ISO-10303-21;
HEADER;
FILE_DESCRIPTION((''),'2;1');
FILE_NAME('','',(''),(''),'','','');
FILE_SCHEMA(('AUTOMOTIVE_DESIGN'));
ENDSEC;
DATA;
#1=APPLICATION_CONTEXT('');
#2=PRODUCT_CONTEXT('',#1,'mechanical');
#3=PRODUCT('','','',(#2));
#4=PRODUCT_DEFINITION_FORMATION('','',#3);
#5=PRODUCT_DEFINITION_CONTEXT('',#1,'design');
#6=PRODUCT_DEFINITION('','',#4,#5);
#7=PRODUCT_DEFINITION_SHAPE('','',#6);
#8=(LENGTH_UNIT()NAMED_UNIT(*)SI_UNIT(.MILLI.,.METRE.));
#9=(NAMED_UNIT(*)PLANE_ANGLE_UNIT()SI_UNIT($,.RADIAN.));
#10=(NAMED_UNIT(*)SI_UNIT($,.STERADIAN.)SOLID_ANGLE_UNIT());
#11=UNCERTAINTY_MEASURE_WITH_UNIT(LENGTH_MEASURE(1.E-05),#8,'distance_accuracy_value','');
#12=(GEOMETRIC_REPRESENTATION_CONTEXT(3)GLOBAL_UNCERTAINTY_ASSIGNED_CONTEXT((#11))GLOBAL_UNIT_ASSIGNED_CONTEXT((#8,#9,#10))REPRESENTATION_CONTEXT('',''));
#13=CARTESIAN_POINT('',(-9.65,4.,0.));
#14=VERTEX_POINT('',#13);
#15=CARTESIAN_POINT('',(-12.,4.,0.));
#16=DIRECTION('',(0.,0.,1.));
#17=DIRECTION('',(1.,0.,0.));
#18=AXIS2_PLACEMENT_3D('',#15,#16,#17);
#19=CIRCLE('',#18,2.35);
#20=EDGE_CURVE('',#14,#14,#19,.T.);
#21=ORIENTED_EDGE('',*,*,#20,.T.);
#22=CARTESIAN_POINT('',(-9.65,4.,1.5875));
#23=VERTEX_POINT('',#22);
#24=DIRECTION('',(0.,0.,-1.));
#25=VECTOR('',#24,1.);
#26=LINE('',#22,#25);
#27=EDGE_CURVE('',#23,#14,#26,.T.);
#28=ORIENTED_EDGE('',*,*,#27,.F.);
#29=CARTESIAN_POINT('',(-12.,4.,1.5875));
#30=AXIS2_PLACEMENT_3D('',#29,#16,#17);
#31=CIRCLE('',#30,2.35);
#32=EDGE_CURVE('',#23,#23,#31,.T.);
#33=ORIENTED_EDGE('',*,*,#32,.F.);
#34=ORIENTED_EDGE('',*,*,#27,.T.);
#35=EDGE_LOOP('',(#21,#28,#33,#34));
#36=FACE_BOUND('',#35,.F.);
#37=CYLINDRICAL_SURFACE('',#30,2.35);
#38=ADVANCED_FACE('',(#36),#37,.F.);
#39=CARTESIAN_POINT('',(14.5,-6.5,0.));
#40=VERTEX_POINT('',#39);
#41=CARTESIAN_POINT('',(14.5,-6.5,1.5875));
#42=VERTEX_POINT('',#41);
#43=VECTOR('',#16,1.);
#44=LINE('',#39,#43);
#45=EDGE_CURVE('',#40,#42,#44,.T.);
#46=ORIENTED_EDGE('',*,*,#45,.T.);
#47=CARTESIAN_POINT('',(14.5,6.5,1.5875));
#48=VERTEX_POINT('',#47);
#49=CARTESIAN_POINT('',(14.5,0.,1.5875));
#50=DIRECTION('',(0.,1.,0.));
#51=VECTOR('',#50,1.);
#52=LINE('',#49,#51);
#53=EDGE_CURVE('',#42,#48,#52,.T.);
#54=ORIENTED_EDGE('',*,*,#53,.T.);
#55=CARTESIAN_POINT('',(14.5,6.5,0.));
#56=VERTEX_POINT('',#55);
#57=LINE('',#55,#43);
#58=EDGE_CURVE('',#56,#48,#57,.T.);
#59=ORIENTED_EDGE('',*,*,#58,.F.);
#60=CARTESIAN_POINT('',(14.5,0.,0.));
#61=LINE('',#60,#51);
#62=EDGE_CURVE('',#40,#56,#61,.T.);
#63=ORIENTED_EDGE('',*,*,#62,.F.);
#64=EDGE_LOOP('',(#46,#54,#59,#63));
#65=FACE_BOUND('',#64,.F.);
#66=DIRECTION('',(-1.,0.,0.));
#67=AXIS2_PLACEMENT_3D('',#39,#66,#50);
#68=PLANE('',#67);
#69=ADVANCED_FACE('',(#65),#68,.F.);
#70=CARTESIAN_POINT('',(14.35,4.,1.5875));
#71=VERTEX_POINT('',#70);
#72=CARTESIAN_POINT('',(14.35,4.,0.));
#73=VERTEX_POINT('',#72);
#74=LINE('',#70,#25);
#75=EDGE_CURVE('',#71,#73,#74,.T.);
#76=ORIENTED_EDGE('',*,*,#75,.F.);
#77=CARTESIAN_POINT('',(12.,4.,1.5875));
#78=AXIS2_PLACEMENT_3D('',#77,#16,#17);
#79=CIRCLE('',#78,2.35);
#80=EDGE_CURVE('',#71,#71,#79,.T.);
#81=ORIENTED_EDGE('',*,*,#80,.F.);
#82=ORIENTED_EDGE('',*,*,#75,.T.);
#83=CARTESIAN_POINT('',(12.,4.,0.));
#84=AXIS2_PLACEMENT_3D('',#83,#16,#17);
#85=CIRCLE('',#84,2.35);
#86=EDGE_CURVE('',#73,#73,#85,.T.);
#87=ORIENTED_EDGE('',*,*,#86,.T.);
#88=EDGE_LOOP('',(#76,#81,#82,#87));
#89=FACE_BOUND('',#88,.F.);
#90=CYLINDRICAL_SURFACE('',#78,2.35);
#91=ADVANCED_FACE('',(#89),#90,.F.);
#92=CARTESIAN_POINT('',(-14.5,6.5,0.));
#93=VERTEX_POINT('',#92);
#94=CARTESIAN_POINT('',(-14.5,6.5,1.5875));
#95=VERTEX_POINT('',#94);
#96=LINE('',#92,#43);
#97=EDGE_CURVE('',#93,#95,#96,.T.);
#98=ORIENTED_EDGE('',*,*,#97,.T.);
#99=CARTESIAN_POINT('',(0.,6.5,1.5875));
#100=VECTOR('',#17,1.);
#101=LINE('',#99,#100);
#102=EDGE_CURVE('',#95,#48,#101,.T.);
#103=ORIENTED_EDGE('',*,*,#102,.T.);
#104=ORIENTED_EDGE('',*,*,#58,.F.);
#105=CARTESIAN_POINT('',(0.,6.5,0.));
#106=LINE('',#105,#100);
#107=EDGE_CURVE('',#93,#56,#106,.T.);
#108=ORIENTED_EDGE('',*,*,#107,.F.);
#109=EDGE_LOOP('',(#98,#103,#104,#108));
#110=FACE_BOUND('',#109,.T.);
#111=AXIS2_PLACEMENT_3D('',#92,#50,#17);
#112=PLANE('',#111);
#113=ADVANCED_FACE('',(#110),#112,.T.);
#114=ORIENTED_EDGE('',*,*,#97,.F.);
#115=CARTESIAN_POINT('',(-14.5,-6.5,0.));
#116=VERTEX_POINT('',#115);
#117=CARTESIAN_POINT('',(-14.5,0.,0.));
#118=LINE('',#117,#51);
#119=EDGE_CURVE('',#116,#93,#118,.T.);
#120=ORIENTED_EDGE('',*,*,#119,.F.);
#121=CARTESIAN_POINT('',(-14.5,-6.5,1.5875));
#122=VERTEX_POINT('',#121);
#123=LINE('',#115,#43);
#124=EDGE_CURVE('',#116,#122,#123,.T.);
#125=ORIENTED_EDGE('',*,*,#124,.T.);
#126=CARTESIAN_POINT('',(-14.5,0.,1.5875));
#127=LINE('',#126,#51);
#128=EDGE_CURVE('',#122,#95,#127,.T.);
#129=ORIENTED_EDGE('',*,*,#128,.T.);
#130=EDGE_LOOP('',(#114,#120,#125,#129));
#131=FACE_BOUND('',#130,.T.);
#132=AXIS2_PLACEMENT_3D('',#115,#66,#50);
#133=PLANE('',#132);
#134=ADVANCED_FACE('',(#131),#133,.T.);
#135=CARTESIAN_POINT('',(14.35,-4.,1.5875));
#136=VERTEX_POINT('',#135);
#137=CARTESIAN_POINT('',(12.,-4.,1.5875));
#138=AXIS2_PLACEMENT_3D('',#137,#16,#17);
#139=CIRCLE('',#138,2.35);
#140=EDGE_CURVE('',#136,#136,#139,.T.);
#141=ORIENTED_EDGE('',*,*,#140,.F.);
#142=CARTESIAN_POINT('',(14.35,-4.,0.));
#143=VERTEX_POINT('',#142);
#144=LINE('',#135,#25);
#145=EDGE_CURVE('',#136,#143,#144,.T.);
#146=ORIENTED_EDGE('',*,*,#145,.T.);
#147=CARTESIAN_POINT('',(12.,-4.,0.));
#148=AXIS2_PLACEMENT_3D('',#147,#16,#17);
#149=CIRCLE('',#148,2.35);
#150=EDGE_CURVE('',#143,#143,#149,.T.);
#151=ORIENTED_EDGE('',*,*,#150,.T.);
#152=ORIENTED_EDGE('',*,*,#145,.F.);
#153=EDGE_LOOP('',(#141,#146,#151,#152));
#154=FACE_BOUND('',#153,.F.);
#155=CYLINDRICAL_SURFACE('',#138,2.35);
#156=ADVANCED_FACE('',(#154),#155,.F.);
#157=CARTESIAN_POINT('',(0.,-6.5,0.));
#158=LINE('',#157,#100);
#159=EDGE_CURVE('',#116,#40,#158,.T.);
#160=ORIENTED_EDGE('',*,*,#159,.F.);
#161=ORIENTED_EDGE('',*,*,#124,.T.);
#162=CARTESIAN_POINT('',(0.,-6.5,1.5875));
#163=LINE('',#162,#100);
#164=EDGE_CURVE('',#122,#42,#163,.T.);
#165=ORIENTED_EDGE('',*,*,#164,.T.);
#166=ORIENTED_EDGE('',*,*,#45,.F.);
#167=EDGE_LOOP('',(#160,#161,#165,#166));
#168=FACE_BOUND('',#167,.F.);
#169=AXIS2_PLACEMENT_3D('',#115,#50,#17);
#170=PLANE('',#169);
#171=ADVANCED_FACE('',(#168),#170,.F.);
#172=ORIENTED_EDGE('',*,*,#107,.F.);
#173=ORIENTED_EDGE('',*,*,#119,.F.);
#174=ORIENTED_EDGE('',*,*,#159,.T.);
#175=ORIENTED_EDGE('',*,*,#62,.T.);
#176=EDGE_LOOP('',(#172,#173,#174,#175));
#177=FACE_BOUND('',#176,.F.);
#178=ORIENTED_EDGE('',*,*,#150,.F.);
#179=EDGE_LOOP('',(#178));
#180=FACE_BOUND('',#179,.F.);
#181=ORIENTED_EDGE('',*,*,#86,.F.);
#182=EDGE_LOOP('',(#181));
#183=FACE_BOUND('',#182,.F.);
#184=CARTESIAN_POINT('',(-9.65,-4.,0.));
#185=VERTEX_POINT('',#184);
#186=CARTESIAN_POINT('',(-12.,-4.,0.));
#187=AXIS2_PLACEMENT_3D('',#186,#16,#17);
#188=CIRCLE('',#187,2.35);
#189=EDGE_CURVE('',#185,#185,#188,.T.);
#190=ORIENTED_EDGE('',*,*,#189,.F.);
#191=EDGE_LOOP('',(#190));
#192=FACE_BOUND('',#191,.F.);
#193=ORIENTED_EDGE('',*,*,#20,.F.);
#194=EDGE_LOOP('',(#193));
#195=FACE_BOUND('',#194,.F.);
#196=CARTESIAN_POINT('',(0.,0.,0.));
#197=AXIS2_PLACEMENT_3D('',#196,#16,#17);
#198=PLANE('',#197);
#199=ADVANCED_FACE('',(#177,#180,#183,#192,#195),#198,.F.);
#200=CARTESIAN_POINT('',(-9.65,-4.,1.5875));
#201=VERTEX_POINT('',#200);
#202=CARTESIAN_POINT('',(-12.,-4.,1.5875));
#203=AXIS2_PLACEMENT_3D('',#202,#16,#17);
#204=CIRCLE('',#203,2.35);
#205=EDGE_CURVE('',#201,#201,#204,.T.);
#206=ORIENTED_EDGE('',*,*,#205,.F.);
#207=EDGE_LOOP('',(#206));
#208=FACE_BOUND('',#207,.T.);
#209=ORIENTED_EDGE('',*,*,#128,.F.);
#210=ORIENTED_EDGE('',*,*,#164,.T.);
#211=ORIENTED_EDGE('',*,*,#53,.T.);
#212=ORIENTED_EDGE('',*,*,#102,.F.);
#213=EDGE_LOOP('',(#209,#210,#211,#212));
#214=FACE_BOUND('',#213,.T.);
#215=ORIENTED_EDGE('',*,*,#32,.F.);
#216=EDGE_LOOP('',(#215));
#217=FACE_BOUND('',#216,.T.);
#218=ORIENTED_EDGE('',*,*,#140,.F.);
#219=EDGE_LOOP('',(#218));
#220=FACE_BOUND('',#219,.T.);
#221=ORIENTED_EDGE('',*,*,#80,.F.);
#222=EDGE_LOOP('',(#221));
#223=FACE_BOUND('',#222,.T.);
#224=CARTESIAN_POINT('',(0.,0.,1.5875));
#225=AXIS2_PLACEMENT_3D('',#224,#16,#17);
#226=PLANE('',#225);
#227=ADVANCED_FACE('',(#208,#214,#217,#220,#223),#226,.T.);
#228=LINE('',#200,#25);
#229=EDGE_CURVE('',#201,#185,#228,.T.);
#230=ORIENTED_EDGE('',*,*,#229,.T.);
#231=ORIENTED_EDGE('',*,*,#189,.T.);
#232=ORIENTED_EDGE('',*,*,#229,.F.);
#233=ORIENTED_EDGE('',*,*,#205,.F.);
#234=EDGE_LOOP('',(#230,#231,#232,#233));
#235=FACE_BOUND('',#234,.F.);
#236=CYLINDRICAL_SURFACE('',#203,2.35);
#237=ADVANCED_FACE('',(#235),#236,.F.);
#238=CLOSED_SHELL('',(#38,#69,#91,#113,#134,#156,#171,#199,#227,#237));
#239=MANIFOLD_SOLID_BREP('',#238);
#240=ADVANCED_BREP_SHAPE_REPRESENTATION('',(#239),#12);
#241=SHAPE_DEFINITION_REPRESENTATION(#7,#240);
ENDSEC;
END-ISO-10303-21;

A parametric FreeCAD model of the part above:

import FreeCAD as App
import Part
import Sketcher

V = App.Vector


def add_polygon(sketch, points):
    """Adds a closed chain of lines whose ends are joined by coincident constraints."""
    first, n = sketch.GeometryCount, len(points)
    for a, b in zip(points, points[1:] + points[:1]):
        sketch.addGeometry(Part.LineSegment(App.Vector(*a, 0), App.Vector(*b, 0)), False)
    for i in range(n):
        sketch.addConstraint(Sketcher.Constraint("Coincident", first + i, 2, first + (i + 1) % n, 1))

doc = App.newDocument("Part")
body = doc.addObject("PartDesign::Body", "Body")

sketch1 = body.newObject("Sketcher::SketchObject", "Sketch")
sketch1.AttachmentSupport = (doc.getObject("XY_Plane"), [""])
sketch1.MapMode = "FlatFace"
add_polygon(sketch1, [(-14.5, 6.5), (-14.5, -6.5), (14.5, -6.5), (14.5, 6.5)])
sketch1.addConstraint(Sketcher.Constraint("Vertical", 0))
sketch1.addConstraint(Sketcher.Constraint("Horizontal", 1))
sketch1.addConstraint(Sketcher.Constraint("Vertical", 2))
sketch1.addConstraint(Sketcher.Constraint("Horizontal", 3))
sketch1.addConstraint(Sketcher.Constraint("Symmetric", 0, 2, 2, 2, -1, 1))
sketch1.addConstraint(Sketcher.Constraint("DistanceX", 1, 1, 1, 2, 29.0))
sketch1.addConstraint(Sketcher.Constraint("DistanceY", 0, 2, 0, 1, 13.0))
pad1 = body.newObject("PartDesign::Pad", "Pad")
pad1.Profile = sketch1
pad1.Length = 1.5875

sketch2 = body.newObject("Sketcher::SketchObject", "Sketch001")
sketch2.AttachmentSupport = (doc.getObject("XY_Plane"), [""])
sketch2.MapMode = "FlatFace"
sketch2.AttachmentOffset = App.Placement(V(0, 0, 1.5875), App.Rotation())
sketch2.addGeometry(Part.Circle(V(-12, 4, 0), V(0, 0, 1), 2.35), False)
sketch2.addGeometry(Part.Circle(V(-12, -4, 0), V(0, 0, 1), 2.35), False)
sketch2.addGeometry(Part.Circle(V(12, -4, 0), V(0, 0, 1), 2.35), False)
sketch2.addGeometry(Part.Circle(V(12, 4, 0), V(0, 0, 1), 2.35), False)
sketch2.addConstraint(Sketcher.Constraint("Equal", 0, 1))
sketch2.addConstraint(Sketcher.Constraint("Equal", 1, 2))
sketch2.addConstraint(Sketcher.Constraint("Equal", 2, 3))
sketch2.addConstraint(Sketcher.Constraint("Symmetric", 0, 3, 2, 3, -1, 1))
sketch2.addConstraint(Sketcher.Constraint("Symmetric", 1, 3, 3, 3, -1, 1))
sketch2.addConstraint(Sketcher.Constraint("Symmetric", 1, 3, 2, 3, -2))
sketch2.addConstraint(Sketcher.Constraint("Diameter", 0, 4.7))
sketch2.addConstraint(Sketcher.Constraint("DistanceX", 0, 3, -1, 1, 12.0))
sketch2.addConstraint(Sketcher.Constraint("DistanceY", -1, 1, 0, 3, 4.0))
pocket1 = body.newObject("PartDesign::Pocket", "Pocket")
pocket1.Profile = sketch2
pocket1.Length = 25.4
body2 = doc.addObject("PartDesign::Body", "Body001")

sketch3 = body2.newObject("Sketcher::SketchObject", "Sketch002")
sketch3.AttachmentSupport = (doc.getObject("XY_Plane001"), [""])
sketch3.MapMode = "FlatFace"
sketch3.addGeometry(Part.Circle(V(-62.359009, 0, 0), V(0, 0, 1), 6.25), False)
sketch3.addConstraint(Sketcher.Constraint("PointOnObject", 0, 3, -1))
sketch3.addConstraint(Sketcher.Constraint("Diameter", 0, 12.5))
sketch3.addConstraint(Sketcher.Constraint("DistanceX", 0, 3, -1, 1, 62.359009))
pad2 = body2.newObject("PartDesign::Pad", "Pad001")
pad2.Profile = sketch3
pad2.Length = 2
body2.Visibility = False

doc.recompute()
